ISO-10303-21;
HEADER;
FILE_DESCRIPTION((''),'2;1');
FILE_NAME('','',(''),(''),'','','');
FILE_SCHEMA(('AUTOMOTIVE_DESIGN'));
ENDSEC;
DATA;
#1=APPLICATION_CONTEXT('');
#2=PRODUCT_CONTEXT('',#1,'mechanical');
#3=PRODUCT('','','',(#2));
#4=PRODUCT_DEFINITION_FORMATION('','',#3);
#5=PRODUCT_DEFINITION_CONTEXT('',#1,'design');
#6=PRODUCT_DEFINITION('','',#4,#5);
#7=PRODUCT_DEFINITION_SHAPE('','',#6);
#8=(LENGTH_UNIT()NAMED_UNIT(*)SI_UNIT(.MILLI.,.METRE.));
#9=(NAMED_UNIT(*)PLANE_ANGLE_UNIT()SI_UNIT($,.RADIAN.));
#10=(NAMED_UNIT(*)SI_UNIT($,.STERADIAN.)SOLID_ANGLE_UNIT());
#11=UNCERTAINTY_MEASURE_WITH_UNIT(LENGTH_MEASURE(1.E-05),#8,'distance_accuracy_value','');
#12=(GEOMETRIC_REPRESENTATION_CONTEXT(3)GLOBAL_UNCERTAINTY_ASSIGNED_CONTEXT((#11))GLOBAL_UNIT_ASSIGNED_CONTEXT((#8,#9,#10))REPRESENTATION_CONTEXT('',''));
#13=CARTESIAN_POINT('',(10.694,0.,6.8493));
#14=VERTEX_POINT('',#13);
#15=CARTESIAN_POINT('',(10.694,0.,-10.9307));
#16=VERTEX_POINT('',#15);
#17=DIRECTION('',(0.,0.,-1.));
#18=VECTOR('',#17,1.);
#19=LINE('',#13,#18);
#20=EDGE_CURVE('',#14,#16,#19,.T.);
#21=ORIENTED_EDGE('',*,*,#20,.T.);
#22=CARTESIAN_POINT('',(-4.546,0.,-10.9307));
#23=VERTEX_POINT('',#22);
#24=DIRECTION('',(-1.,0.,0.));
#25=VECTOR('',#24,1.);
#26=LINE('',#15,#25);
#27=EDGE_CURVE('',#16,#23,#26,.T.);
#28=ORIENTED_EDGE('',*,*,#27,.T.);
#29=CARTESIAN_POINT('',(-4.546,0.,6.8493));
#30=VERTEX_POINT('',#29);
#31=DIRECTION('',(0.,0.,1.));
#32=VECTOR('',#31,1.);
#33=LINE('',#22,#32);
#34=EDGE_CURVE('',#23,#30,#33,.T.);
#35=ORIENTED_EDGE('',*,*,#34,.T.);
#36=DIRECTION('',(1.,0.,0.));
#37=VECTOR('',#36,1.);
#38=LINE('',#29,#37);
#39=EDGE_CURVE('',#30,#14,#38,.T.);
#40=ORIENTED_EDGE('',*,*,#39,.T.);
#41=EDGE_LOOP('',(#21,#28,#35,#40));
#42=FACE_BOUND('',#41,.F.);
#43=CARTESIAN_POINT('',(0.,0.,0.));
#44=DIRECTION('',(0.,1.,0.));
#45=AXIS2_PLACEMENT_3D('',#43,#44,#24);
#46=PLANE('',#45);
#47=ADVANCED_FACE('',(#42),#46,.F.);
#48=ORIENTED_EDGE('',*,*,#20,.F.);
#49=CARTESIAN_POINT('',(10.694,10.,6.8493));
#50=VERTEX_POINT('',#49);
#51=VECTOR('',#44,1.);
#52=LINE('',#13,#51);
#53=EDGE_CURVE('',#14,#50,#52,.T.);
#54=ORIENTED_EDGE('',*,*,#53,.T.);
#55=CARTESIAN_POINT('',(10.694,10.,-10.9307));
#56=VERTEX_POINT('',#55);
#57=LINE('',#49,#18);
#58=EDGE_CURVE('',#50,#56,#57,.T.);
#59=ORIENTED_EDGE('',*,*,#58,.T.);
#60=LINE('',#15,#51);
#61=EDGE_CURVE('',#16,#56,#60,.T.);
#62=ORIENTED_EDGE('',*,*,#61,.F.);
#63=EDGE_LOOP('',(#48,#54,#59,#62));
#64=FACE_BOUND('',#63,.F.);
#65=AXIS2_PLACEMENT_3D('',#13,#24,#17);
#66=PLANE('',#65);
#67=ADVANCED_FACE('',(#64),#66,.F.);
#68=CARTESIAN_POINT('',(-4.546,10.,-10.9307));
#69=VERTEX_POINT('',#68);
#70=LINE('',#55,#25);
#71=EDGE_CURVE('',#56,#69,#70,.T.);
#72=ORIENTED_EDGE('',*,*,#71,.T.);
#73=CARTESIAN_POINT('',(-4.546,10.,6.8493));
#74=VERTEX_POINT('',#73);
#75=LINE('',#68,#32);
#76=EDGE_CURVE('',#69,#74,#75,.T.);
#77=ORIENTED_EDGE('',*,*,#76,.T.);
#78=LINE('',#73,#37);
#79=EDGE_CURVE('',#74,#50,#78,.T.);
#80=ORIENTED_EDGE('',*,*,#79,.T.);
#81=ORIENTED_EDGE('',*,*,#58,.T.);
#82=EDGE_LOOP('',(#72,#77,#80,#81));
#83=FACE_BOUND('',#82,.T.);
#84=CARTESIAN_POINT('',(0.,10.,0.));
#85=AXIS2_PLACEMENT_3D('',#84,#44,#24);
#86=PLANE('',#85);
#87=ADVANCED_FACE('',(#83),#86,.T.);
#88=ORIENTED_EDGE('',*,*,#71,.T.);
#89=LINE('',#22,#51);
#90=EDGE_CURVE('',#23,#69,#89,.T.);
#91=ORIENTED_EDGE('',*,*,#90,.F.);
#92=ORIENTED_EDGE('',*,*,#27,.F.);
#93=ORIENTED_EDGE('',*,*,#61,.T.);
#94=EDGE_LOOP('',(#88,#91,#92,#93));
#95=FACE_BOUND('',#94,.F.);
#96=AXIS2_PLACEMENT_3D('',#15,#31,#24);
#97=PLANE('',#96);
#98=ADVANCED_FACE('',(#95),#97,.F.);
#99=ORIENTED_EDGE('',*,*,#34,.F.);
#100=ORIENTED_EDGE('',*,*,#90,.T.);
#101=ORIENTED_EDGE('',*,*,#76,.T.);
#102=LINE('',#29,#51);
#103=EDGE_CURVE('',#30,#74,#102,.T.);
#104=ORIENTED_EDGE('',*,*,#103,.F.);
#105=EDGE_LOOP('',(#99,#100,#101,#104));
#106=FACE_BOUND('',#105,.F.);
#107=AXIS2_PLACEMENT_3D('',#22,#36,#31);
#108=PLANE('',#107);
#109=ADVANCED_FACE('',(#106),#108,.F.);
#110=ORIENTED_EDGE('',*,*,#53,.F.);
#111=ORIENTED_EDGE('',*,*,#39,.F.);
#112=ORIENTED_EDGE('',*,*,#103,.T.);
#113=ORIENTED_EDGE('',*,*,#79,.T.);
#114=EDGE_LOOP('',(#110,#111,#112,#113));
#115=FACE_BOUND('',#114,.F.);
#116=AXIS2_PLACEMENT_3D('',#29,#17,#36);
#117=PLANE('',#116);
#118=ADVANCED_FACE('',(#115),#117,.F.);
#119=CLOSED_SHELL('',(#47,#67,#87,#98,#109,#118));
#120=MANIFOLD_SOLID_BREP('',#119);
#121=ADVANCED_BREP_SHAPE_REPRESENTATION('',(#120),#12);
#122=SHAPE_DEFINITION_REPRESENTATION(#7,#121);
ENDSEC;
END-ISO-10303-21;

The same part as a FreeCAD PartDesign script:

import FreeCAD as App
import Part
import Sketcher
from FreeCAD import Vector
Q = App.Units.Quantity


def add_polygon(sketch, points):
    """Adds a closed chain of lines whose ends are joined by coincident constraints."""
    first, n = sketch.GeometryCount, len(points)
    for a, b in zip(points, points[1:] + points[:1]):
        sketch.addGeometry(Part.LineSegment(App.Vector(*a, 0), App.Vector(*b, 0)), False)
    for i in range(n):
        sketch.addConstraint(Sketcher.Constraint("Coincident", first + i, 2, first + (i + 1) % n, 1))

doc = App.newDocument("Part")
params = doc.addObject("Spreadsheet::Sheet", "Params")
for row, (alias, value) in enumerate([
    ("sketch1_width", "0.6 in"),
    ("sketch1_height", "0.7 in"),
    ("pad1_length", "0.3937008 in"),
], start=1):
    params.set(f"A{row}", alias)
    params.set(f"B{row}", "=" + value)
    params.setAlias(f"B{row}", alias)

body = doc.addObject("PartDesign::Body", "Body")

# Sketch on XZ plane
sketch1 = doc.addObject("Sketcher::SketchObject", "Sketch")
body.addObject(sketch1)
sketch1.AttachmentSupport = (doc.XZ_Plane, [""])
sketch1.MapMode = "FlatFace"
add_polygon(sketch1, [(-4.546, -10.9307), (-4.546, 6.8493), (10.694, 6.8493), (10.694, -10.9307)])  # lines 0-3
sketch1.addConstraint([
    Sketcher.Constraint("Vertical", 0),
    Sketcher.Constraint("Horizontal", 1),
    Sketcher.Constraint("Vertical", 2),
    Sketcher.Constraint("Horizontal", 3),
    Sketcher.Constraint("DistanceX", 1, 1, 1, 2, Q("0.6 in")),
    Sketcher.Constraint("DistanceY", 0, 1, 0, 2, Q("0.7 in")),
    Sketcher.Constraint("DistanceX", 0, 2, -1, 1, Q("4.546 mm")),
    Sketcher.Constraint("DistanceY", -1, 1, 0, 2, Q("6.8493 mm")),
])
sketch1.setExpression("Constraints[8]", "Params.sketch1_width")
sketch1.setExpression("Constraints[9]", "Params.sketch1_height")
pad1 = doc.addObject("PartDesign::Pad", "Pad")
body.addObject(pad1)
pad1.Profile = sketch1
pad1.setExpression("Length", "Params.pad1_length")
pad1.Reversed = True

doc.recompute()
